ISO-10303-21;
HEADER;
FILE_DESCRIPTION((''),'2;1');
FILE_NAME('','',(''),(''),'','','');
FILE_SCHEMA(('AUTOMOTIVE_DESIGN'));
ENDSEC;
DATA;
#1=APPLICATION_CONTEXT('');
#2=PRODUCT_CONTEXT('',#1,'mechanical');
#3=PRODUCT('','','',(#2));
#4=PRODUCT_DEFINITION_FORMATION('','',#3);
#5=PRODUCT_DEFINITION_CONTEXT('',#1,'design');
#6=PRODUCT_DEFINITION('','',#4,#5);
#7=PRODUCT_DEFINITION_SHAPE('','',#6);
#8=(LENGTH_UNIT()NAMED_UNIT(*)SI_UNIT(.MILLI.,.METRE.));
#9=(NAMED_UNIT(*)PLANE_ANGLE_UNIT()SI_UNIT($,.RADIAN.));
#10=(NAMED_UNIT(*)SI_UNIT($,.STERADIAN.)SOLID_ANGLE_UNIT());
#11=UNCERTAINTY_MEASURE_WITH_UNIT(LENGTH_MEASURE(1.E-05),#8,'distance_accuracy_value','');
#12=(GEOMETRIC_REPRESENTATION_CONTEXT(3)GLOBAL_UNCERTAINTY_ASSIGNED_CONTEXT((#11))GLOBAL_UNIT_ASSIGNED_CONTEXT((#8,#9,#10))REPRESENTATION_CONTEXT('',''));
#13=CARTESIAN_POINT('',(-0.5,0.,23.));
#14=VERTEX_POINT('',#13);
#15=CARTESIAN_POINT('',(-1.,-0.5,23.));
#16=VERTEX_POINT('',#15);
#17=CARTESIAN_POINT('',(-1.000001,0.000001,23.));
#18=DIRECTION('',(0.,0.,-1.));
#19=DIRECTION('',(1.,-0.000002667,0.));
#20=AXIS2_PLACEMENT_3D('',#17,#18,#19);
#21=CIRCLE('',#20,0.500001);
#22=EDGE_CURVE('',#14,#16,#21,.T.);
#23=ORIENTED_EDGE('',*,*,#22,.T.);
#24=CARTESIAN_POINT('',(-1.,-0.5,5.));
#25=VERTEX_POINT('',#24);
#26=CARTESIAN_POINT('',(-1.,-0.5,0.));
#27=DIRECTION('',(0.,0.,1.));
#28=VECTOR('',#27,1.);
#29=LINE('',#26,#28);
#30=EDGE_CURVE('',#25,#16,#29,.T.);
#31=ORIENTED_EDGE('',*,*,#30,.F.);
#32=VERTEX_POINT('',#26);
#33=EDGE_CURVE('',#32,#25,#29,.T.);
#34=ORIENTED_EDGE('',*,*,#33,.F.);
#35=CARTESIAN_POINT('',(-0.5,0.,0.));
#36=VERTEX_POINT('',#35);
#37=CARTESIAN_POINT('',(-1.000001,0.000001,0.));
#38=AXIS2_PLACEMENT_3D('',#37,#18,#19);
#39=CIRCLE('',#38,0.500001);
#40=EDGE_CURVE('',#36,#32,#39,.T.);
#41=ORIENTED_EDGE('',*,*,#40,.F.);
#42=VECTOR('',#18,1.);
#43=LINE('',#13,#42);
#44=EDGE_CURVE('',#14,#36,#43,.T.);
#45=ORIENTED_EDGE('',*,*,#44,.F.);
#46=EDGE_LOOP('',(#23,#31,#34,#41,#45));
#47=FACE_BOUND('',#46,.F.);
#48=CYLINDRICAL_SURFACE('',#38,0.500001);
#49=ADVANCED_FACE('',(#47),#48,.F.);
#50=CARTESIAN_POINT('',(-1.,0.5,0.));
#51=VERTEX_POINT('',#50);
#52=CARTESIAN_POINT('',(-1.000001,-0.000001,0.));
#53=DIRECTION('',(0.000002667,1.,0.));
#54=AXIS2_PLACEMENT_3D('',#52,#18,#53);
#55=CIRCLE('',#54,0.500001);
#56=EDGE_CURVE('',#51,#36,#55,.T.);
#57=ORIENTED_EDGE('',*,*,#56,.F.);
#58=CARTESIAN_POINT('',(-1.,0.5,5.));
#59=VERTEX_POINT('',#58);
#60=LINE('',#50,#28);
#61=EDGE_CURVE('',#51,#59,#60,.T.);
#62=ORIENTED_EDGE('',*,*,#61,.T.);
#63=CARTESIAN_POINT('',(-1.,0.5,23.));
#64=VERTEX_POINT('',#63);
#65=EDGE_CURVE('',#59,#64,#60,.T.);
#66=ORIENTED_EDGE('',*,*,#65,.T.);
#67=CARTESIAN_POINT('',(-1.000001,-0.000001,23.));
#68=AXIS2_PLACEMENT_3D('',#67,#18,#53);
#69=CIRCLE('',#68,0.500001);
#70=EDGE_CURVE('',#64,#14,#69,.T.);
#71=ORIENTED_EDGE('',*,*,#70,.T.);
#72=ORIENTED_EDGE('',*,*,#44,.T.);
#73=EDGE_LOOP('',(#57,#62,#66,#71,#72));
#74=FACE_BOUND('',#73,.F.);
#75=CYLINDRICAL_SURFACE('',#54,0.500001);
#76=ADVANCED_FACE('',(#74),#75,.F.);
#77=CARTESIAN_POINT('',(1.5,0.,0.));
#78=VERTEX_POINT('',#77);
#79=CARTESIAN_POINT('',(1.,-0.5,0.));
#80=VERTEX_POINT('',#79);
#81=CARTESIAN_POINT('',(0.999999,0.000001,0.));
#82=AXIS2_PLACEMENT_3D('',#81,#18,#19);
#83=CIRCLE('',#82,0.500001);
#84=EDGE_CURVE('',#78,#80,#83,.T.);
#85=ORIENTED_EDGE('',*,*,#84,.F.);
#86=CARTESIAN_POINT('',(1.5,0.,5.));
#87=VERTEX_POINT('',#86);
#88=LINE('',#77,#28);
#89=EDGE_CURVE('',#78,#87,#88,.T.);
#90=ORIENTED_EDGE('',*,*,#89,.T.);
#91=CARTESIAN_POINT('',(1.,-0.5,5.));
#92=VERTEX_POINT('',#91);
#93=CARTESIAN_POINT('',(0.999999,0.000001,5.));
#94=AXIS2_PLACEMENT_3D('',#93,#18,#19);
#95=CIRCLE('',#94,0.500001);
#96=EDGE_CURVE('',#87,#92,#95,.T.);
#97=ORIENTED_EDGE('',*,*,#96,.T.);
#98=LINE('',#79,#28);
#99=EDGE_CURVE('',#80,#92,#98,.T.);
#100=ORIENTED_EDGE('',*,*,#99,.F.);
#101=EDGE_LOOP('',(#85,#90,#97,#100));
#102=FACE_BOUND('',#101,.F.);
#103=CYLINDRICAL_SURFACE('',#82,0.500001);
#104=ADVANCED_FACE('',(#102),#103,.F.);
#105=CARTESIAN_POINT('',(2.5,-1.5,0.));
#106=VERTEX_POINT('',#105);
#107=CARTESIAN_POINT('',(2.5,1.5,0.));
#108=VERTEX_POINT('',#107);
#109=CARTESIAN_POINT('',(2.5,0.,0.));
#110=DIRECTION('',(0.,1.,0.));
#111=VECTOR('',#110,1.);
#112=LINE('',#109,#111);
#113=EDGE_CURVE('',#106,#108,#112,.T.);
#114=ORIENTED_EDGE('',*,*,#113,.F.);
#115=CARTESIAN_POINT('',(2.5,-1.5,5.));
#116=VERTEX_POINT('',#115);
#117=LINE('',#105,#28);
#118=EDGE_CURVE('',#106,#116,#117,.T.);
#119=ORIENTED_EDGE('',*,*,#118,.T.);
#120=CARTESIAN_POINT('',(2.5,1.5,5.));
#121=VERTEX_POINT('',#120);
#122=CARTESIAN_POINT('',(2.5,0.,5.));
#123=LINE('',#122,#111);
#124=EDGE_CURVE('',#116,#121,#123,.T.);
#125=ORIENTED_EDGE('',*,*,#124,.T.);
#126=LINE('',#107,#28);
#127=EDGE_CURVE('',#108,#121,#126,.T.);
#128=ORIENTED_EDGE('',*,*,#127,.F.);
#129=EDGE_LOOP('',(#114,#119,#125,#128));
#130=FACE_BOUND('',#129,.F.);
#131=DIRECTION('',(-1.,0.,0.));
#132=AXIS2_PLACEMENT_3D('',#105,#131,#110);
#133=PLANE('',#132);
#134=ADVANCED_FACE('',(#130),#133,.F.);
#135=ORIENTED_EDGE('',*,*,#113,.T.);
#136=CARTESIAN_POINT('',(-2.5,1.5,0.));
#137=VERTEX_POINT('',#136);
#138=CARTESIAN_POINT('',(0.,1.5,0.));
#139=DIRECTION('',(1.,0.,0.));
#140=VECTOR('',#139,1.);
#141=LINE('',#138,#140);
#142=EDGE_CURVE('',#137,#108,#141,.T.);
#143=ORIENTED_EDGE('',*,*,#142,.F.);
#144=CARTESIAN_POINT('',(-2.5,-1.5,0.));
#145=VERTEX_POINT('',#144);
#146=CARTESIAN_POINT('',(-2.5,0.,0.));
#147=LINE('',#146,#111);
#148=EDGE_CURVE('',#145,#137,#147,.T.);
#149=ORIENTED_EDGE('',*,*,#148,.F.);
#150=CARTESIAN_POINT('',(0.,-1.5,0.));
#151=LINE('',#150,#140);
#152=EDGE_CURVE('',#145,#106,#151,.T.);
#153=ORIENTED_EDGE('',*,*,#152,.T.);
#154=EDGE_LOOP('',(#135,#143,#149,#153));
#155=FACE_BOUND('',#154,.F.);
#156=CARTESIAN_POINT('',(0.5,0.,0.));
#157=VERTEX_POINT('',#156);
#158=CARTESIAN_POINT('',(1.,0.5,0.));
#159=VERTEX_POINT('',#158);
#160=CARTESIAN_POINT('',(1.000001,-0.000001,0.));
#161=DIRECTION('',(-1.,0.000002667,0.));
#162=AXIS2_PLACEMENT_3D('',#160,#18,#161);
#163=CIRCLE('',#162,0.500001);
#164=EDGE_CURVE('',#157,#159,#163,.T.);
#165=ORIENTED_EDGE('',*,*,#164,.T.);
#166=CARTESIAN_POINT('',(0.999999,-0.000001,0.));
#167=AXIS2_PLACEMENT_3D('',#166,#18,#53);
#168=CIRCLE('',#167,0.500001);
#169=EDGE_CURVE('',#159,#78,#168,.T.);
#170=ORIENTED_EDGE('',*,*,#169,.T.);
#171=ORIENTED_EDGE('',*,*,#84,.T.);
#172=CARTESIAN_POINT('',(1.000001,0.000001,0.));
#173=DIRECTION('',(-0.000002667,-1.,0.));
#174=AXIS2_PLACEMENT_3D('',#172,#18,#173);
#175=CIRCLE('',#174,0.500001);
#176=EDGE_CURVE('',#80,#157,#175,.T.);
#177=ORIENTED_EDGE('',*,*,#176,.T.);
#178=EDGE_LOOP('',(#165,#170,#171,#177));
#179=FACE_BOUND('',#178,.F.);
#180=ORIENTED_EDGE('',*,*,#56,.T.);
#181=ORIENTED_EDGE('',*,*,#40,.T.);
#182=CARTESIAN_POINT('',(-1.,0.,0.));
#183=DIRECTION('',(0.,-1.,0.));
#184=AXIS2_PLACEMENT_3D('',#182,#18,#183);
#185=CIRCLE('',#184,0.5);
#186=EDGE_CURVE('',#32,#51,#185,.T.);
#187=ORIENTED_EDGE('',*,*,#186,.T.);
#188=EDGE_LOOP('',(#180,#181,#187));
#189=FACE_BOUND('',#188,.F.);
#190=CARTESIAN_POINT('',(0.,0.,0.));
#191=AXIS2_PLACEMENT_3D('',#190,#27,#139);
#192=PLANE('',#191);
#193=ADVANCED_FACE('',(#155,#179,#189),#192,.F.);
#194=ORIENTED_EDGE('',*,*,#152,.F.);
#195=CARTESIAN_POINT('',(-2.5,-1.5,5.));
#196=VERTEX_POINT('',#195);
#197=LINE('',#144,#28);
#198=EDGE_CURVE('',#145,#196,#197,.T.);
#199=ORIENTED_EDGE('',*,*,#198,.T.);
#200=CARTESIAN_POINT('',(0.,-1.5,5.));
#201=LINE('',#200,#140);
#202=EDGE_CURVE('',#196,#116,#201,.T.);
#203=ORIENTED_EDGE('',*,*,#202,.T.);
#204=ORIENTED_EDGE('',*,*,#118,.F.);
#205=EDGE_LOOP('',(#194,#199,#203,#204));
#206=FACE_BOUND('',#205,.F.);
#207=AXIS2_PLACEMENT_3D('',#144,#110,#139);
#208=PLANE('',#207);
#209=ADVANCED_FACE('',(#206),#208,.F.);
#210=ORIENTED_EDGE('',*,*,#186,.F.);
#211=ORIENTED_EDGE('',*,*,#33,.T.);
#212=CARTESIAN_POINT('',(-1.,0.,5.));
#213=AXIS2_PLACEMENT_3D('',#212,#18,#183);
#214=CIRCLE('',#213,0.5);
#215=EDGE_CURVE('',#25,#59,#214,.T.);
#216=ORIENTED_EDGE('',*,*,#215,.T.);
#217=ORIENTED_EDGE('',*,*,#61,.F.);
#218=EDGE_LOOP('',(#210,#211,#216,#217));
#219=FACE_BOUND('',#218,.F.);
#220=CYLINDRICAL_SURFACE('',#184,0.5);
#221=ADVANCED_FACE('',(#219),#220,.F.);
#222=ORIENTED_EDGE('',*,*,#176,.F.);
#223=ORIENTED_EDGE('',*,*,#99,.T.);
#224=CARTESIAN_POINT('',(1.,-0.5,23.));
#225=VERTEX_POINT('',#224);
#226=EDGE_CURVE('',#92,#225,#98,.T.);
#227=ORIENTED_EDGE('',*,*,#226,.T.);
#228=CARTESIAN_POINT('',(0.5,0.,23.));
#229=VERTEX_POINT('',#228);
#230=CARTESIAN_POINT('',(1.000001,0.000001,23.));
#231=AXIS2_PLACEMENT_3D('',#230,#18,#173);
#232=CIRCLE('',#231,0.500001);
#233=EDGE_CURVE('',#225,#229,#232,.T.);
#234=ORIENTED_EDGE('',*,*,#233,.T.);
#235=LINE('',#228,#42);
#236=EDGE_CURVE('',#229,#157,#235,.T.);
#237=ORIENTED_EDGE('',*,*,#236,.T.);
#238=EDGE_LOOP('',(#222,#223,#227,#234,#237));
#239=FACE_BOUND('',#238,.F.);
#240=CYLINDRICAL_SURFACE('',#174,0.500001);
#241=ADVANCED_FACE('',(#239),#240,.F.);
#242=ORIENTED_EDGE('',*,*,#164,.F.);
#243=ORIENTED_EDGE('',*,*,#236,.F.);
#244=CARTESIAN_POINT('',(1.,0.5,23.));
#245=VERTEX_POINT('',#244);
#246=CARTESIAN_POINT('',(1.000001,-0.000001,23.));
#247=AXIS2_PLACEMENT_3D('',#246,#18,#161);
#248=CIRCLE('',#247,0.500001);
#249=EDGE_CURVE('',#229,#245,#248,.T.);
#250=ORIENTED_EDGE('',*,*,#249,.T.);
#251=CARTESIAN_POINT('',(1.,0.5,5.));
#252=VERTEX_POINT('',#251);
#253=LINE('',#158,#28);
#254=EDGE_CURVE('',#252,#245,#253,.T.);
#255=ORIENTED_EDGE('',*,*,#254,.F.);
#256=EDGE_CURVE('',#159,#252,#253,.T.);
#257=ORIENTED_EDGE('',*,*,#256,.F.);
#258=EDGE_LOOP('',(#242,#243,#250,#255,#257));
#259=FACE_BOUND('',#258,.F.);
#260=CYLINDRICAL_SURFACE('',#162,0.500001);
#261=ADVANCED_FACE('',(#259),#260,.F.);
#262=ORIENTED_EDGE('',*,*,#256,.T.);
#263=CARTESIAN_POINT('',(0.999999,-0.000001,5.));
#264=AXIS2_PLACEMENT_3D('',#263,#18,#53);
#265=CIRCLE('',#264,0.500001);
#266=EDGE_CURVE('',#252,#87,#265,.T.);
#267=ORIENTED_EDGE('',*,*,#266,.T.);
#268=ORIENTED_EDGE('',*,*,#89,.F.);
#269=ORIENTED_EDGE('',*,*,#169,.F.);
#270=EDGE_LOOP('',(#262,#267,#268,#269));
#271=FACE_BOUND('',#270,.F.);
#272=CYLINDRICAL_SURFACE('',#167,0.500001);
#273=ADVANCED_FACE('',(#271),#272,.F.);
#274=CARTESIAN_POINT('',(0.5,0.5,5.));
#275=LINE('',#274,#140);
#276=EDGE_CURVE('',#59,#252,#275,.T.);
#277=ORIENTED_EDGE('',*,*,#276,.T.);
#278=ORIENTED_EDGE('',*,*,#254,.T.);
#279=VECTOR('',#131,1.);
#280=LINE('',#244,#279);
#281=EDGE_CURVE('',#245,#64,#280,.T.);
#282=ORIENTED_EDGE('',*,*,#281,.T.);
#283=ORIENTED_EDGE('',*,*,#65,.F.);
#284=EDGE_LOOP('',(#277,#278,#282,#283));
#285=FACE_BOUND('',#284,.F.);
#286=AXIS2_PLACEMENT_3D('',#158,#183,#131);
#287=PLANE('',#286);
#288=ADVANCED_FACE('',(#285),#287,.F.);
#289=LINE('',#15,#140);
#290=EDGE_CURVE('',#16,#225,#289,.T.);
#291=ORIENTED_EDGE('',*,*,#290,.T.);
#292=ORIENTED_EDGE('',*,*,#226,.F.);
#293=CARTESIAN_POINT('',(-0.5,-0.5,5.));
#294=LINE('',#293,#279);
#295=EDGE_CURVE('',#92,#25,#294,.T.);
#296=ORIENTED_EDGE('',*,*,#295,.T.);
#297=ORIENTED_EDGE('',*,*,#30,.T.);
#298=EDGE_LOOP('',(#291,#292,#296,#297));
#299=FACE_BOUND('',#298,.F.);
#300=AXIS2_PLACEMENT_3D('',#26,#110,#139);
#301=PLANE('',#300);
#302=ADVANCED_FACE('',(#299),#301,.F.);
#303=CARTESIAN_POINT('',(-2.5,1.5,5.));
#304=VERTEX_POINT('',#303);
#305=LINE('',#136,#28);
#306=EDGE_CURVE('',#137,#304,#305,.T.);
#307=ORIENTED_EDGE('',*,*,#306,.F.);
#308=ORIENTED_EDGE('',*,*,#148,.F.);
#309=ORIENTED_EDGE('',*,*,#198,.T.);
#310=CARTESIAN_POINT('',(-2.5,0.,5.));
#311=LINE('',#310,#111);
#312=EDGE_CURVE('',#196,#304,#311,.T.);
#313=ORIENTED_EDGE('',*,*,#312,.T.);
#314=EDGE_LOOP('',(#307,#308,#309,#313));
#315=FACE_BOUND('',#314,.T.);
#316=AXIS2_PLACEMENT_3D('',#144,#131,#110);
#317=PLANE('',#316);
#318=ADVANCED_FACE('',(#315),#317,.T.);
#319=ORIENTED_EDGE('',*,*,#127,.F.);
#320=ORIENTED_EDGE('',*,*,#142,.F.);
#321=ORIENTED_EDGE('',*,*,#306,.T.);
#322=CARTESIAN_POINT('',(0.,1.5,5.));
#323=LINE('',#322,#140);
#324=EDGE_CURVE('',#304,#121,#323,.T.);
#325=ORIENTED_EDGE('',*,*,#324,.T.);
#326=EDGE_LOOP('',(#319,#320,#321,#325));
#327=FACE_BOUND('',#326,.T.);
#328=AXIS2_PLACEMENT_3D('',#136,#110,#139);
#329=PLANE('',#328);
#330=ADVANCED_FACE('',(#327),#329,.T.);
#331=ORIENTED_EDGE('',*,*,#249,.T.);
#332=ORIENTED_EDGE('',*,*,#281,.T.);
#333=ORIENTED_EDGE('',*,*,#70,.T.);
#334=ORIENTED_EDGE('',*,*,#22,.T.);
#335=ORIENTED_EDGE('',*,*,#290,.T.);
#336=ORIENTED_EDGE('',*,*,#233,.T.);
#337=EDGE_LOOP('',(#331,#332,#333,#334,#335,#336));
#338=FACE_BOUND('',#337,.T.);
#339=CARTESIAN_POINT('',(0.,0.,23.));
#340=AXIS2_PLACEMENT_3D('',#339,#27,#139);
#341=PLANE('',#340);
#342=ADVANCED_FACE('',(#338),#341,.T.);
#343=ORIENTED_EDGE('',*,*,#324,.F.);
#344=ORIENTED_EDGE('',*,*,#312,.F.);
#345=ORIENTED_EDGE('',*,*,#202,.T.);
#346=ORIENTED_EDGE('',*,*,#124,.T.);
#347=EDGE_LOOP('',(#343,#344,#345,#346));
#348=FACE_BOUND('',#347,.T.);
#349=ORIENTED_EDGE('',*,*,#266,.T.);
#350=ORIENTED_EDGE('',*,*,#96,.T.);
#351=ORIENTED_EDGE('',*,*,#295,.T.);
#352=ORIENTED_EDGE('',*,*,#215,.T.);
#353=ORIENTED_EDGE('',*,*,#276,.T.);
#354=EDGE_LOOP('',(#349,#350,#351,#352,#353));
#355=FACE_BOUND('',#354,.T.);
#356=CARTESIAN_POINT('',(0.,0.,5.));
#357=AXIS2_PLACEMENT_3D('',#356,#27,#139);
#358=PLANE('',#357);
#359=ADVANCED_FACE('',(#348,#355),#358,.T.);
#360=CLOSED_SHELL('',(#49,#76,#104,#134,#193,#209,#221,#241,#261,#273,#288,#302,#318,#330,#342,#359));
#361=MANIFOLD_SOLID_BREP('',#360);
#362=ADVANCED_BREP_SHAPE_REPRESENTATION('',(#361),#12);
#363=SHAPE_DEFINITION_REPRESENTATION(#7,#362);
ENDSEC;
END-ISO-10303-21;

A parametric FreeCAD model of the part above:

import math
import FreeCAD as App
import Part
import Sketcher
Q = App.Units.Quantity

doc = App.newDocument("Part")
params = doc.addObject("Spreadsheet::Sheet", "Params")
for row, (alias, value) in enumerate([
    ("sketch1_radius", "0.5 mm"),
    ("sketch1_width", "5 mm"),
    ("sketch1_height", "3 mm"),
    ("pad1_length", "5 mm"),
    ("sketch2_radius", "0.500001 mm"),
    ("sketch2_width", "2 mm"),
    ("pad2_length", "23 mm"),
], start=1):
    params.set(f"A{row}", alias)
    params.set(f"B{row}", "=" + value)
    params.setAlias(f"B{row}", alias)

body = doc.addObject("PartDesign::Body", "Body")

# Sketch on XY plane
sketch1 = doc.addObject("Sketcher::SketchObject", "Sketch")
body.addObject(sketch1)
sketch1.AttachmentSupport = (doc.XY_Plane, [""])
sketch1.MapMode = "FlatFace"
sketch1.addGeometry([
    Part.LineSegment(App.Vector(-2.5, 1.5, 0), App.Vector(-2.5, -1.5, 0)),  # 0
    Part.LineSegment(App.Vector(-2.5, -1.5, 0), App.Vector(2.5, -1.5, 0)),  # 1
    Part.LineSegment(App.Vector(2.5, -1.5, 0), App.Vector(2.5, 1.5, 0)),  # 2
    Part.LineSegment(App.Vector(2.5, 1.5, 0), App.Vector(-2.5, 1.5, 0)),  # 3
    Part.ArcOfCircle(Part.Circle(App.Vector(-1, 0, 0), App.Vector(0, 0, 1), 0.5), math.radians(90), math.radians(270)),  # 4
    Part.ArcOfCircle(Part.Circle(App.Vector(-1, 0, 0), App.Vector(0, 0, 1), 0.5), math.radians(0), math.radians(90)),  # 5
    Part.ArcOfCircle(Part.Circle(App.Vector(-1, 0, 0), App.Vector(0, 0, 1), 0.5), math.radians(-90), math.radians(0)),  # 6
    Part.ArcOfCircle(Part.Circle(App.Vector(1, 0, 0), App.Vector(0, 0, 1), 0.5), math.radians(-90), math.radians(0)),  # 7
    Part.ArcOfCircle(Part.Circle(App.Vector(1, 0, 0), App.Vector(0, 0, 1), 0.5), math.radians(-180), math.radians(-90)),  # 8
    Part.ArcOfCircle(Part.Circle(App.Vector(1, 0, 0), App.Vector(0, 0, 1), 0.5), math.radians(90), math.radians(180)),  # 9
    Part.ArcOfCircle(Part.Circle(App.Vector(1, 0, 0), App.Vector(0, 0, 1), 0.5), math.radians(0), math.radians(90)),  # 10
], False)
sketch1.addConstraint([
    Sketcher.Constraint("Coincident", 0, 2, 1, 1),
    Sketcher.Constraint("Coincident", 1, 2, 2, 1),
    Sketcher.Constraint("Coincident", 2, 2, 3, 1),
    Sketcher.Constraint("Coincident", 3, 2, 0, 1),
    Sketcher.Constraint("Coincident", 4, 1, 5, 2),
    Sketcher.Constraint("Coincident", 5, 1, 6, 2),
    Sketcher.Constraint("Coincident", 6, 1, 4, 2),
    Sketcher.Constraint("Coincident", 7, 1, 8, 2),
    Sketcher.Constraint("Coincident", 8, 1, 9, 2),
    Sketcher.Constraint("Coincident", 9, 1, 10, 2),
    Sketcher.Constraint("Coincident", 10, 1, 7, 2),
    Sketcher.Constraint("Vertical", 0),
    Sketcher.Constraint("Horizontal", 1),
    Sketcher.Constraint("Vertical", 2),
    Sketcher.Constraint("Horizontal", 3),
    Sketcher.Constraint("Coincident", 5, 3, 4, 3),
    Sketcher.Constraint("Coincident", 8, 3, 7, 3),
    Sketcher.Constraint("Coincident", 9, 3, 7, 3),
    Sketcher.Constraint("Equal", 5, 6),
    Sketcher.Constraint("Equal", 6, 7),
    Sketcher.Constraint("Equal", 9, 10),
    Sketcher.Constraint("Symmetric", 4, 3, 7, 3, -1, 1),
    Sketcher.Constraint("Symmetric", 0, 2, 2, 2, -1, 1),
    Sketcher.Constraint("Symmetric", 6, 1, 7, 1, -2),
    Sketcher.Constraint("PointOnObject", 5, 1, -1),
    Sketcher.Constraint("PointOnObject", 8, 1, -1),
    Sketcher.Constraint("PointOnObject", 10, 1, -1),
    Sketcher.Constraint("Vertical", 6, 3, 4, 1),
    Sketcher.Constraint("Vertical", 4, 1, 6, 1),
    Sketcher.Constraint("Vertical", 7, 1, 9, 1),
    Sketcher.Constraint("Radius", 4, Q("0.5 mm")),
    Sketcher.Constraint("DistanceX", 1, 1, 1, 2, Q("5 mm")),
    Sketcher.Constraint("DistanceY", 0, 2, 0, 1, Q("3 mm")),
    Sketcher.Constraint("DistanceX", 4, 3, -1, 1, Q("1 mm")),
])
sketch1.setExpression("Constraints[30]", "Params.sketch1_radius")
sketch1.setExpression("Constraints[31]", "Params.sketch1_width")
sketch1.setExpression("Constraints[32]", "Params.sketch1_height")
pad1 = doc.addObject("PartDesign::Pad", "Pad")
body.addObject(pad1)
pad1.Profile = sketch1
pad1.setExpression("Length", "Params.pad1_length")

# Sketch on XY plane
sketch2 = doc.addObject("Sketcher::SketchObject", "Sketch001")
body.addObject(sketch2)
sketch2.AttachmentSupport = (doc.XY_Plane, [""])
sketch2.MapMode = "FlatFace"
sketch2.addGeometry([
    Part.ArcOfCircle(Part.Circle(App.Vector(1, 0, 0), App.Vector(0, 0, 1), 0.5), math.radians(-180), math.radians(-90)),  # 0
    Part.ArcOfCircle(Part.Circle(App.Vector(1, 0, 0), App.Vector(0, 0, 1), 0.5), math.radians(90), math.radians(180)),  # 1
    Part.LineSegment(App.Vector(1, 0.5, 0), App.Vector(-1, 0.5, 0)),  # 2
    Part.ArcOfCircle(Part.Circle(App.Vector(-1, 0, 0), App.Vector(0, 0, 1), 0.5), math.radians(0), math.radians(90)),  # 3
    Part.ArcOfCircle(Part.Circle(App.Vector(-1, 0, 0), App.Vector(0, 0, 1), 0.5), math.radians(-90), math.radians(0)),  # 4
    Part.LineSegment(App.Vector(-1, -0.5, 0), App.Vector(1, -0.5, 0)),  # 5
], False)
sketch2.addConstraint([
    Sketcher.Constraint("Coincident", 0, 1, 1, 2),
    Sketcher.Constraint("Coincident", 1, 1, 2, 1),
    Sketcher.Constraint("Coincident", 2, 2, 3, 2),
    Sketcher.Constraint("Coincident", 3, 1, 4, 2),
    Sketcher.Constraint("Coincident", 4, 1, 5, 1),
    Sketcher.Constraint("Coincident", 5, 2, 0, 2),
    Sketcher.Constraint("Horizontal", 2),
    Sketcher.Constraint("Horizontal", 5),
    Sketcher.Constraint("Coincident", 1, 3, 0, 3),
    Sketcher.Constraint("Coincident", 4, 3, 3, 3),
    Sketcher.Constraint("Symmetric", 0, 3, 3, 3, -1, 1),
    Sketcher.Constraint("PointOnObject", 0, 1, -1),
    Sketcher.Constraint("PointOnObject", 3, 1, -1),
    Sketcher.Constraint("Vertical", 0, 3, 1, 1),
    Sketcher.Constraint("Vertical", 4, 3, 2, 2),
    Sketcher.Constraint("Vertical", 2, 2, 4, 1),
    Sketcher.Constraint("Vertical", 1, 1, 5, 2),
    Sketcher.Constraint("Radius", 0, Q("0.500001 mm")),
    Sketcher.Constraint("DistanceX", 2, 2, 2, 1, Q("2 mm")),
])
sketch2.setExpression("Constraints[17]", "Params.sketch2_radius")
sketch2.setExpression("Constraints[18]", "Params.sketch2_width")
pad2 = doc.addObject("PartDesign::Pad", "Pad001")
body.addObject(pad2)
pad2.Profile = sketch2
pad2.setExpression("Length", "Params.pad2_length")

doc.recompute()
